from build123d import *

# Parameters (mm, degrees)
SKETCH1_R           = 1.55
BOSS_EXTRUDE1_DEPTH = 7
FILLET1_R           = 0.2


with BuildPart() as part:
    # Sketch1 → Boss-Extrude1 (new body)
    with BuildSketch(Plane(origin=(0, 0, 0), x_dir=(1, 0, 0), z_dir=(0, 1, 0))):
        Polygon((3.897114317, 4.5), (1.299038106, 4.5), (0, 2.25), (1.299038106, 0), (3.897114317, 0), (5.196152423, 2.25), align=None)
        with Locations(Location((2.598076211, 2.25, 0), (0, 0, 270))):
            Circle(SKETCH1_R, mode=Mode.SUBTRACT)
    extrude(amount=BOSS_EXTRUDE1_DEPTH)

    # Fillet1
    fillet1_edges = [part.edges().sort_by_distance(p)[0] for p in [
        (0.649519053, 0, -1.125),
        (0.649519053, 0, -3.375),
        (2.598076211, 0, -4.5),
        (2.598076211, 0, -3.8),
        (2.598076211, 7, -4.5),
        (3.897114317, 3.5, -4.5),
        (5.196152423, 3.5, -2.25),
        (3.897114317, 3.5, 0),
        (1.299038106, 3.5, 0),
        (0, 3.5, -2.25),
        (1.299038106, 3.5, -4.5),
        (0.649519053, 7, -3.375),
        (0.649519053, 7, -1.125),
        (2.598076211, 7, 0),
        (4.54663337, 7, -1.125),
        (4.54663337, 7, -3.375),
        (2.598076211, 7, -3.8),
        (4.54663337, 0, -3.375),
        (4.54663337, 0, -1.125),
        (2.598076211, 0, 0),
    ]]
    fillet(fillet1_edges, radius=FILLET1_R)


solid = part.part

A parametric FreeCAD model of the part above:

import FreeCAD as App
import Part
import Sketcher
from FreeCAD import Vector
Q = App.Units.Quantity

doc = App.newDocument("Part")
body = doc.addObject("PartDesign::Body", "Body")

# Sketch on XZ plane
sketch1 = body.newObject("Sketcher::SketchObject", "Sketch")
sketch1.AttachmentSupport = (doc.getObject("XZ_Plane"), [""])
sketch1.MapMode = "FlatFace"
sketch1.addGeometry(Part.LineSegment(Vector(3.9, -4.5, 0), Vector(1.3, -4.5, 0)), False)
sketch1.addGeometry(Part.LineSegment(Vector(1.3, -4.5, 0), Vector(0, -2.2, 0)), False)
sketch1.addGeometry(Part.LineSegment(Vector(0, -2.2, 0), Vector(1.3, 0, 0)), False)
sketch1.addGeometry(Part.LineSegment(Vector(1.3, 0, 0), Vector(3.9, 0, 0)), False)
sketch1.addGeometry(Part.LineSegment(Vector(3.9, 0, 0), Vector(5.2, -2.2, 0)), False)
sketch1.addGeometry(Part.LineSegment(Vector(5.2, -2.2, 0), Vector(3.9, -4.5, 0)), False)
sketch1.addGeometry(Part.Circle(Vector(2.6, -2.2, 0), Vector(0, 0, 1), 1.6), False)
sketch1.addConstraint(Sketcher.Constraint("Coincident", 0, 2, 1, 1))
sketch1.addConstraint(Sketcher.Constraint("Coincident", 1, 2, 2, 1))
sketch1.addConstraint(Sketcher.Constraint("Coincident", 2, 2, 3, 1))
sketch1.addConstraint(Sketcher.Constraint("Coincident", 3, 2, 4, 1))
sketch1.addConstraint(Sketcher.Constraint("Coincident", 4, 2, 5, 1))
sketch1.addConstraint(Sketcher.Constraint("Coincident", 5, 2, 0, 1))
sketch1.addConstraint(Sketcher.Constraint("Horizontal", 0))
sketch1.addConstraint(Sketcher.Constraint("Horizontal", 3))
sketch1.addConstraint(Sketcher.Constraint("PointOnObject", 1, 2, -2))
sketch1.addConstraint(Sketcher.Constraint("PointOnObject", 2, 2, -1))
sketch1.addConstraint(Sketcher.Constraint("Parallel", 1, 4))
sketch1.addConstraint(Sketcher.Constraint("Parallel", 2, 5))
sketch1.addConstraint(Sketcher.Constraint("Horizontal", 6, 3, 1, 2))
sketch1.addConstraint(Sketcher.Constraint("Horizontal", 1, 2, 4, 2))
sketch1.addConstraint(Sketcher.Constraint("Vertical", 0, 2, 2, 2))
sketch1.addConstraint(Sketcher.Constraint("Vertical", 3, 2, 5, 2))
sketch1.addConstraint(Sketcher.Constraint("Diameter", 6, Q("3.1 mm")))
sketch1.addConstraint(Sketcher.Constraint("Angle", 1, Q("120 deg")))
sketch1.addConstraint(Sketcher.Constraint("DistanceY", 0, 2, -1, 1, Q("4.5 mm")))
sketch1.addConstraint(Sketcher.Constraint("DistanceX", 0, 2, 0, 1, Q("2.598076 mm")))
sketch1.addConstraint(Sketcher.Constraint("DistanceX", 0, 2, 6, 3, Q("1.299038 mm")))
pad1 = body.newObject("PartDesign::Pad", "Pad")
pad1.Profile = sketch1
pad1.Length = 7
pad1.Reversed = True
doc.recompute()

fillet = body.newObject("PartDesign::Fillet", "Fillet")
fillet.Base = (pad1, ["Edge1"])
fillet.UseAllEdges = True
fillet.Radius = 0.2

doc.recompute()
